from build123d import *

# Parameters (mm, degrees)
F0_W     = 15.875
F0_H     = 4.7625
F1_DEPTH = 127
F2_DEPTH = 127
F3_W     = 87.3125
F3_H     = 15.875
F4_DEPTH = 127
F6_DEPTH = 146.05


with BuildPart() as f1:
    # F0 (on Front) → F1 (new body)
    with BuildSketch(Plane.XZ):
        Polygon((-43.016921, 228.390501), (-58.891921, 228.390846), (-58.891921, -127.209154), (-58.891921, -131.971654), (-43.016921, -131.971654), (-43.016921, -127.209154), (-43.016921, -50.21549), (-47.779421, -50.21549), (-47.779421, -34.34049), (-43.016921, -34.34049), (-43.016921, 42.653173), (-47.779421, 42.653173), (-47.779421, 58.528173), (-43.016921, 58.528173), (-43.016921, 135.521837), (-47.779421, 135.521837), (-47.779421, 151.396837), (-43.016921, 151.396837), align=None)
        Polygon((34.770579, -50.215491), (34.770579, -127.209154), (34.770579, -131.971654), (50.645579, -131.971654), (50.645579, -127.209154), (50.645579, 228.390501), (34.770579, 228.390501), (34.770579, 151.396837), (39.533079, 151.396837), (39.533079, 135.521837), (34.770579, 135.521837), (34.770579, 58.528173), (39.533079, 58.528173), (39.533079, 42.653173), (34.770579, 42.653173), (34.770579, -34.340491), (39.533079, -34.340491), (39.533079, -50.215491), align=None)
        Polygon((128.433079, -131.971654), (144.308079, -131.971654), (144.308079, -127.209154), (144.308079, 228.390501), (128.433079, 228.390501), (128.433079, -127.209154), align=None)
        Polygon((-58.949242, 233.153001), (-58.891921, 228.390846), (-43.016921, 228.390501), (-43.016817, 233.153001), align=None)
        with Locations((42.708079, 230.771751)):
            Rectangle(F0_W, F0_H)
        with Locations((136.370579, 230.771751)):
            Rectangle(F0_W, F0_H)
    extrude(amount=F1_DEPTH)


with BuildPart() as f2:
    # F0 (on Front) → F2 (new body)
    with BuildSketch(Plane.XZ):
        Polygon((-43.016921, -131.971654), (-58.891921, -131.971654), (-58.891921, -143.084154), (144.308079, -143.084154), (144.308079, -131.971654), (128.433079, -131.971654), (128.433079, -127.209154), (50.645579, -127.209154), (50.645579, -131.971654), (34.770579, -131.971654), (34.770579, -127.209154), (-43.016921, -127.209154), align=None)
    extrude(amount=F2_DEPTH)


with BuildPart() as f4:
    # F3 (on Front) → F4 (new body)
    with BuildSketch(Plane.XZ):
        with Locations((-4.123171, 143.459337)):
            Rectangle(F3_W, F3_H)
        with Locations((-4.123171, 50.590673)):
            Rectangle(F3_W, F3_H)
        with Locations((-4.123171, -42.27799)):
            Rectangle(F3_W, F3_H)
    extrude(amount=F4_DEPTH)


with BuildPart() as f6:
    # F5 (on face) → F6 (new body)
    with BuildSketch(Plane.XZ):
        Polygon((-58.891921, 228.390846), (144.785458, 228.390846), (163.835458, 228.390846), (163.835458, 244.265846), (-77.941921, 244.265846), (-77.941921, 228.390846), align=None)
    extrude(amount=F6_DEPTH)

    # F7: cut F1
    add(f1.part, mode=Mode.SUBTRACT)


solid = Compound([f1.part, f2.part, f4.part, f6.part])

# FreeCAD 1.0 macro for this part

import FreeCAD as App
import Part
import Sketcher
Q = App.Units.Quantity

doc = App.newDocument("Part")
params = doc.addObject("Spreadsheet::Sheet", "Params")
for row, (alias, value) in enumerate([
    ("sketch1_width", "0.625 in"),
    ("sketch1_width2", "0.1875 in"),
    ("sketch1_height", "14.1875 in"),
    ("sketch1_length", "0.1875 in"),
    ("pad1_length", "5 in"),
    ("sketch2_width", "8 in"),
    ("sketch2_width2", "0.625 in"),
    ("sketch2_height", "0.4375 in"),
    ("sketch2_height2", "0.1875 in"),
    ("pad2_length", "5 in"),
    ("sketch3_width", "3.4375 in"),
    ("sketch3_height", "0.625 in"),
    ("pad3_length", "5 in"),
    ("sketch4_height", "0.625 in"),
    ("pad4_length", "5.75 in"),
], start=1):
    params.set(f"A{row}", alias)
    params.set(f"B{row}", "=" + value)
    params.setAlias(f"B{row}", alias)

body = doc.addObject("PartDesign::Body", "Body")
body.AllowCompound = True

sketch1 = body.newObject("Sketcher::SketchObject", "Sketch")
sketch1.AttachmentSupport = (doc.getObject("XZ_Plane"), [""])
sketch1.MapMode = "FlatFace"
sketch1.addGeometry([
    Part.LineSegment(App.Vector(-58.891921, 228.390846, 0), App.Vector(-58.891921, -131.971654, 0)),
    Part.LineSegment(App.Vector(-58.891921, -131.971654, 0), App.Vector(-43.016921, -131.971654, 0)),
    Part.LineSegment(App.Vector(-43.016921, -131.971654, 0), App.Vector(-43.016921, -50.21549, 0)),
    Part.LineSegment(App.Vector(-43.016921, -50.21549, 0), App.Vector(-47.779421, -50.21549, 0)),
    Part.LineSegment(App.Vector(-47.779421, -50.21549, 0), App.Vector(-47.779421, -34.34049, 0)),
    Part.LineSegment(App.Vector(-47.779421, -34.34049, 0), App.Vector(-43.016921, -34.34049, 0)),
    Part.LineSegment(App.Vector(-43.016921, -34.34049, 0), App.Vector(-43.016921, 42.653173, 0)),
    Part.LineSegment(App.Vector(-43.016921, 42.653173, 0), App.Vector(-47.779421, 42.653173, 0)),
    Part.LineSegment(App.Vector(-47.779421, 42.653173, 0), App.Vector(-47.779421, 58.528173, 0)),
    Part.LineSegment(App.Vector(-47.779421, 58.528173, 0), App.Vector(-43.016921, 58.528173, 0)),
    Part.LineSegment(App.Vector(-43.016921, 58.528173, 0), App.Vector(-43.016921, 135.521837, 0)),
    Part.LineSegment(App.Vector(-43.016921, 135.521837, 0), App.Vector(-47.779421, 135.521837, 0)),
    Part.LineSegment(App.Vector(-47.779421, 135.521837, 0), App.Vector(-47.779421, 151.396837, 0)),
    Part.LineSegment(App.Vector(-47.779421, 151.396837, 0), App.Vector(-43.016921, 151.396837, 0)),
    Part.LineSegment(App.Vector(-43.016921, 151.396837, 0), App.Vector(-43.016921, 228.390501, 0)),
    Part.LineSegment(App.Vector(-43.016921, 228.390501, 0), App.Vector(-43.016817, 233.153001, 0)),
    Part.LineSegment(App.Vector(-43.016817, 233.153001, 0), App.Vector(-58.949242, 233.153001, 0)),
    Part.LineSegment(App.Vector(-58.949242, 233.153001, 0), App.Vector(-58.891921, 228.390846, 0)),
    Part.LineSegment(App.Vector(34.770579, -50.215491, 0), App.Vector(34.770579, -131.971654, 0)),
    Part.LineSegment(App.Vector(34.770579, -131.971654, 0), App.Vector(50.645579, -131.971654, 0)),
    Part.LineSegment(App.Vector(50.645579, -131.971654, 0), App.Vector(50.645579, 233.153001, 0)),
    Part.LineSegment(App.Vector(50.645579, 233.153001, 0), App.Vector(34.770579, 233.153001, 0)),
    Part.LineSegment(App.Vector(34.770579, 233.153001, 0), App.Vector(34.770579, 151.396837, 0)),
    Part.LineSegment(App.Vector(34.770579, 151.396837, 0), App.Vector(39.533079, 151.396837, 0)),
    Part.LineSegment(App.Vector(39.533079, 151.396837, 0), App.Vector(39.533079, 135.521837, 0)),
    Part.LineSegment(App.Vector(39.533079, 135.521837, 0), App.Vector(34.770579, 135.521837, 0)),
    Part.LineSegment(App.Vector(34.770579, 135.521837, 0), App.Vector(34.770579, 58.528173, 0)),
    Part.LineSegment(App.Vector(34.770579, 58.528173, 0), App.Vector(39.533079, 58.528173, 0)),
    Part.LineSegment(App.Vector(39.533079, 58.528173, 0), App.Vector(39.533079, 42.653173, 0)),
    Part.LineSegment(App.Vector(39.533079, 42.653173, 0), App.Vector(34.770579, 42.653173, 0)),
    Part.LineSegment(App.Vector(34.770579, 42.653173, 0), App.Vector(34.770579, -34.340491, 0)),
    Part.LineSegment(App.Vector(34.770579, -34.340491, 0), App.Vector(39.533079, -34.340491, 0)),
    Part.LineSegment(App.Vector(39.533079, -34.340491, 0), App.Vector(39.533079, -50.215491, 0)),
    Part.LineSegment(App.Vector(39.533079, -50.215491, 0), App.Vector(34.770579, -50.215491, 0)),
    Part.LineSegment(App.Vector(128.433079, -131.971654, 0), App.Vector(144.308079, -131.971654, 0)),
    Part.LineSegment(App.Vector(144.308079, -131.971654, 0), App.Vector(144.308079, 233.153001, 0)),
    Part.LineSegment(App.Vector(144.308079, 233.153001, 0), App.Vector(128.433079, 233.153001, 0)),
    Part.LineSegment(App.Vector(128.433079, 233.153001, 0), App.Vector(128.433079, -131.971654, 0)),
], False)
sketch1.addConstraint([
    Sketcher.Constraint("Coincident", 0, 2, 1, 1),
    Sketcher.Constraint("Coincident", 1, 2, 2, 1),
    Sketcher.Constraint("Coincident", 2, 2, 3, 1),
    Sketcher.Constraint("Coincident", 3, 2, 4, 1),
    Sketcher.Constraint("Coincident", 4, 2, 5, 1),
    Sketcher.Constraint("Coincident", 5, 2, 6, 1),
    Sketcher.Constraint("Coincident", 6, 2, 7, 1),
    Sketcher.Constraint("Coincident", 7, 2, 8, 1),
    Sketcher.Constraint("Coincident", 8, 2, 9, 1),
    Sketcher.Constraint("Coincident", 9, 2, 10, 1),
    Sketcher.Constraint("Coincident", 10, 2, 11, 1),
    Sketcher.Constraint("Coincident", 11, 2, 12, 1),
    Sketcher.Constraint("Coincident", 12, 2, 13, 1),
    Sketcher.Constraint("Coincident", 13, 2, 14, 1),
    Sketcher.Constraint("Coincident", 14, 2, 15, 1),
    Sketcher.Constraint("Coincident", 15, 2, 16, 1),
    Sketcher.Constraint("Coincident", 16, 2, 17, 1),
    Sketcher.Constraint("Coincident", 17, 2, 0, 1),
    Sketcher.Constraint("Coincident", 18, 2, 19, 1),
    Sketcher.Constraint("Coincident", 19, 2, 20, 1),
    Sketcher.Constraint("Coincident", 20, 2, 21, 1),
    Sketcher.Constraint("Coincident", 21, 2, 22, 1),
    Sketcher.Constraint("Coincident", 22, 2, 23, 1),
    Sketcher.Constraint("Coincident", 23, 2, 24, 1),
    Sketcher.Constraint("Coincident", 24, 2, 25, 1),
    Sketcher.Constraint("Coincident", 25, 2, 26, 1),
    Sketcher.Constraint("Coincident", 26, 2, 27, 1),
    Sketcher.Constraint("Coincident", 27, 2, 28, 1),
    Sketcher.Constraint("Coincident", 28, 2, 29, 1),
    Sketcher.Constraint("Coincident", 29, 2, 30, 1),
    Sketcher.Constraint("Coincident", 30, 2, 31, 1),
    Sketcher.Constraint("Coincident", 31, 2, 32, 1),
    Sketcher.Constraint("Coincident", 32, 2, 33, 1),
    Sketcher.Constraint("Coincident", 33, 2, 18, 1),
    Sketcher.Constraint("Coincident", 34, 2, 35, 1),
    Sketcher.Constraint("Coincident", 35, 2, 36, 1),
    Sketcher.Constraint("Coincident", 36, 2, 37, 1),
    Sketcher.Constraint("Coincident", 37, 2, 34, 1),
    Sketcher.Constraint("Vertical", 0),
    Sketcher.Constraint("Horizontal", 1),
    Sketcher.Constraint("Vertical", 2),
    Sketcher.Constraint("Horizontal", 3),
    Sketcher.Constraint("Vertical", 4),
    Sketcher.Constraint("Horizontal", 5),
    Sketcher.Constraint("Vertical", 6),
    Sketcher.Constraint("Horizontal", 7),
    Sketcher.Constraint("Vertical", 8),
    Sketcher.Constraint("Horizontal", 9),
    Sketcher.Constraint("Vertical", 10),
    Sketcher.Constraint("Horizontal", 11),
    Sketcher.Constraint("Vertical", 12),
    Sketcher.Constraint("Horizontal", 13),
    Sketcher.Constraint("Vertical", 14),
    Sketcher.Constraint("Horizontal", 16),
    Sketcher.Constraint("Vertical", 18),
    Sketcher.Constraint("Horizontal", 19),
    Sketcher.Constraint("Vertical", 20),
    Sketcher.Constraint("Horizontal", 21),
    Sketcher.Constraint("Vertical", 22),
    Sketcher.Constraint("Horizontal", 23),
    Sketcher.Constraint("Vertical", 24),
    Sketcher.Constraint("Horizontal", 25),
    Sketcher.Constraint("Vertical", 26),
    Sketcher.Constraint("Horizontal", 27),
    Sketcher.Constraint("Vertical", 28),
    Sketcher.Constraint("Horizontal", 29),
    Sketcher.Constraint("Vertical", 30),
    Sketcher.Constraint("Horizontal", 31),
    Sketcher.Constraint("Vertical", 32),
    Sketcher.Constraint("Horizontal", 33),
    Sketcher.Constraint("Horizontal", 34),
    Sketcher.Constraint("Vertical", 35),
    Sketcher.Constraint("Horizontal", 36),
    Sketcher.Constraint("Vertical", 37),
    Sketcher.Constraint("Horizontal", 1, 2, 18, 2),
    Sketcher.Constraint("Horizontal", 16, 2, 20, 2),
    Sketcher.Constraint("Horizontal", 13, 2, 22, 2),
    Sketcher.Constraint("Horizontal", 11, 2, 24, 2),
    Sketcher.Constraint("Horizontal", 9, 2, 26, 2),
    Sketcher.Constraint("Horizontal", 7, 2, 28, 2),
    Sketcher.Constraint("Horizontal", 5, 2, 30, 2),
    Sketcher.Constraint("Horizontal", 3, 2, 32, 2),
    Sketcher.Constraint("Horizontal", 19, 2, 34, 2),
    Sketcher.Constraint("Horizontal", 21, 2, 35, 2),
    Sketcher.Constraint("Vertical", 2, 2, 5, 2),
    Sketcher.Constraint("Vertical", 4, 2, 7, 2),
    Sketcher.Constraint("Vertical", 6, 2, 9, 2),
    Sketcher.Constraint("Vertical", 8, 2, 11, 2),
    Sketcher.Constraint("Vertical", 10, 2, 13, 2),
    Sketcher.Constraint("Vertical", 18, 2, 21, 2),
    Sketcher.Constraint("Vertical", 22, 2, 25, 2),
    Sketcher.Constraint("Vertical", 24, 2, 27, 2),
    Sketcher.Constraint("Vertical", 26, 2, 29, 2),
    Sketcher.Constraint("Vertical", 28, 2, 31, 2),
    Sketcher.Constraint("Equal", 1, 19),
    Sketcher.Constraint("Equal", 13, 23),
    Sketcher.Constraint("Equal", 21, 34),
    Sketcher.Constraint("Equal", 36, 4),
    Sketcher.Constraint("Equal", 4, 8),
    Sketcher.Constraint("Equal", 6, 10),
    Sketcher.Constraint("Equal", 8, 12),
    Sketcher.Constraint("Equal", 10, 14),
    Sketcher.Constraint("Equal", 18, 22),
    Sketcher.Constraint("Equal", 15, 17),
    Sketcher.Constraint("DistanceX", 23, 2, 36, 2, Q("3.5 in")),
    Sketcher.Constraint("DistanceX", 1, 1, 1, 2, Q("0.625 in")),
    Sketcher.Constraint("DistanceX", 3, 2, 3, 1, Q("0.1875 in")),
    Sketcher.Constraint("DistanceY", 0, 2, 0, 1, Q("14.1875 in")),
    Sketcher.Constraint("DistanceX", 3, 2, 18, 2, Q("3.25 in")),
    Sketcher.Constraint("Distance", 15, Q("0.1875 in")),
    Sketcher.Constraint("DistanceY", -1, 1, 14, 2, Q("228.390501 mm")),
    Sketcher.Constraint("DistanceX", 16, 2, 16, 1, Q("15.932425 mm")),
    Sketcher.Constraint("DistanceY", 20, 1, 20, 2, Q("365.124655 mm")),
    Sketcher.Constraint("DistanceX", 0, 2, -1, 1, Q("58.891921 mm")),
])
sketch1.setExpression("Constraints[105]", "Params.sketch1_width")
sketch1.setExpression("Constraints[106]", "Params.sketch1_width2")
sketch1.setExpression("Constraints[107]", "Params.sketch1_height")
sketch1.setExpression("Constraints[109]", "Params.sketch1_length")
pad1 = body.newObject("PartDesign::Pad", "Pad")
pad1.Profile = sketch1
pad1.setExpression("Length", "Params.pad1_length")
body2 = doc.addObject("PartDesign::Body", "Body001")

sketch2 = body2.newObject("Sketcher::SketchObject", "Sketch001")
sketch2.AttachmentSupport = (doc.getObject("XZ_Plane001"), [""])
sketch2.MapMode = "FlatFace"
sketch2.addGeometry([
    Part.LineSegment(App.Vector(-43.016921, -131.971654, 0), App.Vector(-58.891921, -131.971654, 0)),
    Part.LineSegment(App.Vector(-58.891921, -131.971654, 0), App.Vector(-58.891921, -143.084154, 0)),
    Part.LineSegment(App.Vector(-58.891921, -143.084154, 0), App.Vector(144.308079, -143.084154, 0)),
    Part.LineSegment(App.Vector(144.308079, -143.084154, 0), App.Vector(144.308079, -131.971654, 0)),
    Part.LineSegment(App.Vector(144.308079, -131.971654, 0), App.Vector(128.433079, -131.971654, 0)),
    Part.LineSegment(App.Vector(128.433079, -131.971654, 0), App.Vector(128.433079, -127.209154, 0)),
    Part.LineSegment(App.Vector(128.433079, -127.209154, 0), App.Vector(50.645579, -127.209154, 0)),
    Part.LineSegment(App.Vector(50.645579, -127.209154, 0), App.Vector(50.645579, -131.971654, 0)),
    Part.LineSegment(App.Vector(50.645579, -131.971654, 0), App.Vector(34.770579, -131.971654, 0)),
    Part.LineSegment(App.Vector(34.770579, -131.971654, 0), App.Vector(34.770579, -127.209154, 0)),
    Part.LineSegment(App.Vector(34.770579, -127.209154, 0), App.Vector(-43.016921, -127.209154, 0)),
    Part.LineSegment(App.Vector(-43.016921, -127.209154, 0), App.Vector(-43.016921, -131.971654, 0)),
], False)
sketch2.addConstraint([
    Sketcher.Constraint("Coincident", 0, 2, 1, 1),
    Sketcher.Constraint("Coincident", 1, 2, 2, 1),
    Sketcher.Constraint("Coincident", 2, 2, 3, 1),
    Sketcher.Constraint("Coincident", 3, 2, 4, 1),
    Sketcher.Constraint("Coincident", 4, 2, 5, 1),
    Sketcher.Constraint("Coincident", 5, 2, 6, 1),
    Sketcher.Constraint("Coincident", 6, 2, 7, 1),
    Sketcher.Constraint("Coincident", 7, 2, 8, 1),
    Sketcher.Constraint("Coincident", 8, 2, 9, 1),
    Sketcher.Constraint("Coincident", 9, 2, 10, 1),
    Sketcher.Constraint("Coincident", 10, 2, 11, 1),
    Sketcher.Constraint("Coincident", 11, 2, 0, 1),
    Sketcher.Constraint("Horizontal", 0),
    Sketcher.Constraint("Vertical", 1),
    Sketcher.Constraint("Horizontal", 2),
    Sketcher.Constraint("Vertical", 3),
    Sketcher.Constraint("Horizontal", 4),
    Sketcher.Constraint("Vertical", 5),
    Sketcher.Constraint("Horizontal", 6),
    Sketcher.Constraint("Vertical", 7),
    Sketcher.Constraint("Horizontal", 8),
    Sketcher.Constraint("Vertical", 9),
    Sketcher.Constraint("Horizontal", 10),
    Sketcher.Constraint("Vertical", 11),
    Sketcher.Constraint("Horizontal", 0, 2, 3, 2),
    Sketcher.Constraint("Horizontal", 4, 2, 7, 2),
    Sketcher.Constraint("Horizontal", 6, 2, 9, 2),
    Sketcher.Constraint("Equal", 0, 4),
    Sketcher.Constraint("Equal", 4, 8),
    Sketcher.Constraint("Equal", 6, 10),
    Sketcher.Constraint("DistanceX", 2, 1, 2, 2, Q("8 in")),
    Sketcher.Constraint("DistanceX", 0, 2, 0, 1, Q("0.625 in")),
    Sketcher.Constraint("DistanceY", 1, 2, 1, 1, Q("0.4375 in")),
    Sketcher.Constraint("DistanceY", 5, 1, 5, 2, Q("0.1875 in")),
    Sketcher.Constraint("DistanceX", 0, 2, -1, 1, Q("58.891921 mm")),
    Sketcher.Constraint("DistanceY", 0, 2, -1, 1, Q("131.971654 mm")),
])
sketch2.setExpression("Constraints[30]", "Params.sketch2_width")
sketch2.setExpression("Constraints[31]", "Params.sketch2_width2")
sketch2.setExpression("Constraints[32]", "Params.sketch2_height")
sketch2.setExpression("Constraints[33]", "Params.sketch2_height2")
pad2 = body2.newObject("PartDesign::Pad", "Pad001")
pad2.Profile = sketch2
pad2.setExpression("Length", "Params.pad2_length")
body3 = doc.addObject("PartDesign::Body", "Body002")
body3.AllowCompound = True

sketch3 = body3.newObject("Sketcher::SketchObject", "Sketch002")
sketch3.AttachmentSupport = (doc.getObject("XZ_Plane002"), [""])
sketch3.MapMode = "FlatFace"
sketch3.addGeometry([
    Part.LineSegment(App.Vector(-47.779421, 151.396837, 0), App.Vector(-47.779421, 135.521837, 0)),
    Part.LineSegment(App.Vector(-47.779421, 135.521837, 0), App.Vector(39.533079, 135.521837, 0)),
    Part.LineSegment(App.Vector(39.533079, 135.521837, 0), App.Vector(39.533079, 151.396837, 0)),
    Part.LineSegment(App.Vector(39.533079, 151.396837, 0), App.Vector(-47.779421, 151.396837, 0)),
    Part.LineSegment(App.Vector(-47.779421, 58.528173, 0), App.Vector(-47.779421, 42.653173, 0)),
    Part.LineSegment(App.Vector(-47.779421, 42.653173, 0), App.Vector(39.533079, 42.653173, 0)),
    Part.LineSegment(App.Vector(39.533079, 42.653173, 0), App.Vector(39.533079, 58.528173, 0)),
    Part.LineSegment(App.Vector(39.533079, 58.528173, 0), App.Vector(-47.779421, 58.528173, 0)),
    Part.LineSegment(App.Vector(-47.779421, -34.34049, 0), App.Vector(-47.779421, -50.21549, 0)),
    Part.LineSegment(App.Vector(-47.779421, -50.21549, 0), App.Vector(39.533079, -50.21549, 0)),
    Part.LineSegment(App.Vector(39.533079, -50.21549, 0), App.Vector(39.533079, -34.34049, 0)),
    Part.LineSegment(App.Vector(39.533079, -34.34049, 0), App.Vector(-47.779421, -34.34049, 0)),
], False)
sketch3.addConstraint([
    Sketcher.Constraint("Coincident", 0, 2, 1, 1),
    Sketcher.Constraint("Coincident", 1, 2, 2, 1),
    Sketcher.Constraint("Coincident", 2, 2, 3, 1),
    Sketcher.Constraint("Coincident", 3, 2, 0, 1),
    Sketcher.Constraint("Coincident", 4, 2, 5, 1),
    Sketcher.Constraint("Coincident", 5, 2, 6, 1),
    Sketcher.Constraint("Coincident", 6, 2, 7, 1),
    Sketcher.Constraint("Coincident", 7, 2, 4, 1),
    Sketcher.Constraint("Coincident", 8, 2, 9, 1),
    Sketcher.Constraint("Coincident", 9, 2, 10, 1),
    Sketcher.Constraint("Coincident", 10, 2, 11, 1),
    Sketcher.Constraint("Coincident", 11, 2, 8, 1),
    Sketcher.Constraint("Vertical", 0),
    Sketcher.Constraint("Horizontal", 1),
    Sketcher.Constraint("Vertical", 2),
    Sketcher.Constraint("Horizontal", 3),
    Sketcher.Constraint("Vertical", 4),
    Sketcher.Constraint("Horizontal", 5),
    Sketcher.Constraint("Vertical", 6),
    Sketcher.Constraint("Horizontal", 7),
    Sketcher.Constraint("Vertical", 8),
    Sketcher.Constraint("Horizontal", 9),
    Sketcher.Constraint("Vertical", 10),
    Sketcher.Constraint("Horizontal", 11),
    Sketcher.Constraint("Vertical", 3, 2, 4, 2),
    Sketcher.Constraint("Vertical", 2, 2, 5, 2),
    Sketcher.Constraint("Vertical", 7, 2, 8, 2),
    Sketcher.Constraint("Vertical", 6, 2, 9, 2),
    Sketcher.Constraint("Equal", 2, 4),
    Sketcher.Constraint("Equal", 6, 8),
    Sketcher.Constraint("DistanceX", 1, 1, 1, 2, Q("3.4375 in")),
    Sketcher.Constraint("DistanceY", 0, 2, 0, 1, Q("0.625 in")),
    Sketcher.Constraint("DistanceX", 0, 2, -1, 1, Q("47.779421 mm")),
    Sketcher.Constraint("DistanceY", 8, 2, -1, 1, Q("50.21549 mm")),
    Sketcher.Constraint("DistanceY", -1, 1, 0, 2, Q("135.521837 mm")),
    Sketcher.Constraint("DistanceY", -1, 1, 4, 2, Q("42.653173 mm")),
])
sketch3.setExpression("Constraints[30]", "Params.sketch3_width")
sketch3.setExpression("Constraints[31]", "Params.sketch3_height")
pad3 = body3.newObject("PartDesign::Pad", "Pad002")
pad3.Profile = sketch3
pad3.setExpression("Length", "Params.pad3_length")
body4 = doc.addObject("PartDesign::Body", "Body003")

sketch4 = body4.newObject("Sketcher::SketchObject", "Sketch003")
sketch4.AttachmentSupport = (doc.getObject("XZ_Plane003"), [""])
sketch4.MapMode = "FlatFace"
sketch4.addGeometry([
    Part.LineSegment(App.Vector(163.835458, 228.390846, 0), App.Vector(163.835458, 244.265846, 0)),
    Part.LineSegment(App.Vector(163.835458, 244.265846, 0), App.Vector(-77.941921, 244.265846, 0)),
    Part.LineSegment(App.Vector(-77.941921, 244.265846, 0), App.Vector(-77.941921, 228.390846, 0)),
    Part.LineSegment(App.Vector(-77.941921, 228.390846, 0), App.Vector(163.835458, 228.390846, 0)),
], False)
sketch4.addConstraint([
    Sketcher.Constraint("Coincident", 0, 2, 1, 1),
    Sketcher.Constraint("Coincident", 1, 2, 2, 1),
    Sketcher.Constraint("Coincident", 2, 2, 3, 1),
    Sketcher.Constraint("Coincident", 3, 2, 0, 1),
    Sketcher.Constraint("Vertical", 0),
    Sketcher.Constraint("Horizontal", 1),
    Sketcher.Constraint("Vertical", 2),
    Sketcher.Constraint("Horizontal", 3),
    Sketcher.Constraint("DistanceY", 0, 1, 0, 2, Q("0.625 in")),
    Sketcher.Constraint("DistanceX", 1, 2, 1, 1, Q("241.777379 mm")),
    Sketcher.Constraint("DistanceX", 1, 2, -1, 1, Q("77.941921 mm")),
    Sketcher.Constraint("DistanceY", -1, 1, 0, 2, Q("244.265846 mm")),
])
sketch4.setExpression("Constraints[8]", "Params.sketch4_height")
pad4 = body4.newObject("PartDesign::Pad", "Pad003")
pad4.Profile = sketch4
pad4.setExpression("Length", "Params.pad4_length")
doc.recompute()

body5 = doc.addObject("PartDesign::Body", "Body004")
body5.BaseFeature = body
boolean = body4.newObject("PartDesign::Boolean", "Boolean")
boolean.Type = "Cut"
boolean.addObjects([body5])
doc.recompute()

doc.recompute()
